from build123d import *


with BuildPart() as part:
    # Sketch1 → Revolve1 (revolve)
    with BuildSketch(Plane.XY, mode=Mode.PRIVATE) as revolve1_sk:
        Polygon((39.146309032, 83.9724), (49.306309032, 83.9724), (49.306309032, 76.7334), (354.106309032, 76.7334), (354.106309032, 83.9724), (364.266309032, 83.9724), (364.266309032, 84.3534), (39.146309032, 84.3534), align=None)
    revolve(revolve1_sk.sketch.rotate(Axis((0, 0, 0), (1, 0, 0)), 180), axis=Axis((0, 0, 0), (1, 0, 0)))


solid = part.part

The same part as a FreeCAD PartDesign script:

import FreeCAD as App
import Part
import Sketcher

V = App.Vector
Q = App.Units.Quantity


def add_polygon(sketch, points):
    """Adds a closed chain of lines whose ends are joined by coincident constraints."""
    first, n = sketch.GeometryCount, len(points)
    for a, b in zip(points, points[1:] + points[:1]):
        sketch.addGeometry(Part.LineSegment(App.Vector(*a, 0), App.Vector(*b, 0)), False)
    for i in range(n):
        sketch.addConstraint(Sketcher.Constraint("Coincident", first + i, 2, first + (i + 1) % n, 1))

doc = App.newDocument("Part")
params = doc.addObject("Spreadsheet::Sheet", "Params")
for row, (alias, value) in enumerate([
    ("sketch1_width", "12 in"),
    ("sketch1_width2", "0.4 in"),
    ("sketch1_height", "0.285 in"),
    ("revolution_angle", "360 deg"),
], start=1):
    params.set(f"A{row}", alias)
    params.set(f"B{row}", "=" + value)
    params.setAlias(f"B{row}", alias)

body = doc.addObject("PartDesign::Body", "Body")

# Sketch on XY plane
sketch1 = body.newObject("Sketcher::SketchObject", "Sketch")
sketch1.AttachmentSupport = (doc.getObject("XY_Plane"), [""])
sketch1.MapMode = "FlatFace"
add_polygon(sketch1, [(39.15, 83.97), (49.31, 83.97), (49.31, 76.73), (354.11, 76.73), (354.11, 83.97), (364.27, 83.97), (364.27, 84.35), (39.15, 84.35)])  # lines 0-7
sketch1.addConstraint(Sketcher.Constraint("Horizontal", 0))
sketch1.addConstraint(Sketcher.Constraint("Vertical", 1))
sketch1.addConstraint(Sketcher.Constraint("Horizontal", 2))
sketch1.addConstraint(Sketcher.Constraint("Vertical", 3))
sketch1.addConstraint(Sketcher.Constraint("Horizontal", 4))
sketch1.addConstraint(Sketcher.Constraint("Vertical", 5))
sketch1.addConstraint(Sketcher.Constraint("Horizontal", 6))
sketch1.addConstraint(Sketcher.Constraint("Vertical", 7))
sketch1.addConstraint(Sketcher.Constraint("Horizontal", 0, 2, 3, 2))
sketch1.addConstraint(Sketcher.Constraint("Equal", 0, 4))
sketch1.addConstraint(Sketcher.Constraint("DistanceX", 2, 1, 2, 2, Q("12 in")))
sketch1.addConstraint(Sketcher.Constraint("DistanceX", 0, 1, 0, 2, Q("0.4 in")))
sketch1.addConstraint(Sketcher.Constraint("DistanceY", 2, 2, 5, 2, Q("0.3 in")))
sketch1.addConstraint(Sketcher.Constraint("DistanceY", 1, 2, 1, 1, Q("0.285 in")))
sketch1.addConstraint(Sketcher.Constraint("DistanceY", -1, 1, 0, 2, Q("3.306 in")))
sketch1.addConstraint(Sketcher.Constraint("DistanceX", -1, 1, 0, 2, 49.306309))
sketch1.setExpression("Constraints[18]", "Params.sketch1_width")
sketch1.setExpression("Constraints[19]", "Params.sketch1_width2")
sketch1.setExpression("Constraints[21]", "Params.sketch1_height")
revolution = body.newObject("PartDesign::Revolution", "Revolution")
revolution.Profile = sketch1
revolution.ReferenceAxis = (sketch1, ["H_Axis"])
revolution.setExpression("Angle", "Params.revolution_angle")

doc.recompute()
